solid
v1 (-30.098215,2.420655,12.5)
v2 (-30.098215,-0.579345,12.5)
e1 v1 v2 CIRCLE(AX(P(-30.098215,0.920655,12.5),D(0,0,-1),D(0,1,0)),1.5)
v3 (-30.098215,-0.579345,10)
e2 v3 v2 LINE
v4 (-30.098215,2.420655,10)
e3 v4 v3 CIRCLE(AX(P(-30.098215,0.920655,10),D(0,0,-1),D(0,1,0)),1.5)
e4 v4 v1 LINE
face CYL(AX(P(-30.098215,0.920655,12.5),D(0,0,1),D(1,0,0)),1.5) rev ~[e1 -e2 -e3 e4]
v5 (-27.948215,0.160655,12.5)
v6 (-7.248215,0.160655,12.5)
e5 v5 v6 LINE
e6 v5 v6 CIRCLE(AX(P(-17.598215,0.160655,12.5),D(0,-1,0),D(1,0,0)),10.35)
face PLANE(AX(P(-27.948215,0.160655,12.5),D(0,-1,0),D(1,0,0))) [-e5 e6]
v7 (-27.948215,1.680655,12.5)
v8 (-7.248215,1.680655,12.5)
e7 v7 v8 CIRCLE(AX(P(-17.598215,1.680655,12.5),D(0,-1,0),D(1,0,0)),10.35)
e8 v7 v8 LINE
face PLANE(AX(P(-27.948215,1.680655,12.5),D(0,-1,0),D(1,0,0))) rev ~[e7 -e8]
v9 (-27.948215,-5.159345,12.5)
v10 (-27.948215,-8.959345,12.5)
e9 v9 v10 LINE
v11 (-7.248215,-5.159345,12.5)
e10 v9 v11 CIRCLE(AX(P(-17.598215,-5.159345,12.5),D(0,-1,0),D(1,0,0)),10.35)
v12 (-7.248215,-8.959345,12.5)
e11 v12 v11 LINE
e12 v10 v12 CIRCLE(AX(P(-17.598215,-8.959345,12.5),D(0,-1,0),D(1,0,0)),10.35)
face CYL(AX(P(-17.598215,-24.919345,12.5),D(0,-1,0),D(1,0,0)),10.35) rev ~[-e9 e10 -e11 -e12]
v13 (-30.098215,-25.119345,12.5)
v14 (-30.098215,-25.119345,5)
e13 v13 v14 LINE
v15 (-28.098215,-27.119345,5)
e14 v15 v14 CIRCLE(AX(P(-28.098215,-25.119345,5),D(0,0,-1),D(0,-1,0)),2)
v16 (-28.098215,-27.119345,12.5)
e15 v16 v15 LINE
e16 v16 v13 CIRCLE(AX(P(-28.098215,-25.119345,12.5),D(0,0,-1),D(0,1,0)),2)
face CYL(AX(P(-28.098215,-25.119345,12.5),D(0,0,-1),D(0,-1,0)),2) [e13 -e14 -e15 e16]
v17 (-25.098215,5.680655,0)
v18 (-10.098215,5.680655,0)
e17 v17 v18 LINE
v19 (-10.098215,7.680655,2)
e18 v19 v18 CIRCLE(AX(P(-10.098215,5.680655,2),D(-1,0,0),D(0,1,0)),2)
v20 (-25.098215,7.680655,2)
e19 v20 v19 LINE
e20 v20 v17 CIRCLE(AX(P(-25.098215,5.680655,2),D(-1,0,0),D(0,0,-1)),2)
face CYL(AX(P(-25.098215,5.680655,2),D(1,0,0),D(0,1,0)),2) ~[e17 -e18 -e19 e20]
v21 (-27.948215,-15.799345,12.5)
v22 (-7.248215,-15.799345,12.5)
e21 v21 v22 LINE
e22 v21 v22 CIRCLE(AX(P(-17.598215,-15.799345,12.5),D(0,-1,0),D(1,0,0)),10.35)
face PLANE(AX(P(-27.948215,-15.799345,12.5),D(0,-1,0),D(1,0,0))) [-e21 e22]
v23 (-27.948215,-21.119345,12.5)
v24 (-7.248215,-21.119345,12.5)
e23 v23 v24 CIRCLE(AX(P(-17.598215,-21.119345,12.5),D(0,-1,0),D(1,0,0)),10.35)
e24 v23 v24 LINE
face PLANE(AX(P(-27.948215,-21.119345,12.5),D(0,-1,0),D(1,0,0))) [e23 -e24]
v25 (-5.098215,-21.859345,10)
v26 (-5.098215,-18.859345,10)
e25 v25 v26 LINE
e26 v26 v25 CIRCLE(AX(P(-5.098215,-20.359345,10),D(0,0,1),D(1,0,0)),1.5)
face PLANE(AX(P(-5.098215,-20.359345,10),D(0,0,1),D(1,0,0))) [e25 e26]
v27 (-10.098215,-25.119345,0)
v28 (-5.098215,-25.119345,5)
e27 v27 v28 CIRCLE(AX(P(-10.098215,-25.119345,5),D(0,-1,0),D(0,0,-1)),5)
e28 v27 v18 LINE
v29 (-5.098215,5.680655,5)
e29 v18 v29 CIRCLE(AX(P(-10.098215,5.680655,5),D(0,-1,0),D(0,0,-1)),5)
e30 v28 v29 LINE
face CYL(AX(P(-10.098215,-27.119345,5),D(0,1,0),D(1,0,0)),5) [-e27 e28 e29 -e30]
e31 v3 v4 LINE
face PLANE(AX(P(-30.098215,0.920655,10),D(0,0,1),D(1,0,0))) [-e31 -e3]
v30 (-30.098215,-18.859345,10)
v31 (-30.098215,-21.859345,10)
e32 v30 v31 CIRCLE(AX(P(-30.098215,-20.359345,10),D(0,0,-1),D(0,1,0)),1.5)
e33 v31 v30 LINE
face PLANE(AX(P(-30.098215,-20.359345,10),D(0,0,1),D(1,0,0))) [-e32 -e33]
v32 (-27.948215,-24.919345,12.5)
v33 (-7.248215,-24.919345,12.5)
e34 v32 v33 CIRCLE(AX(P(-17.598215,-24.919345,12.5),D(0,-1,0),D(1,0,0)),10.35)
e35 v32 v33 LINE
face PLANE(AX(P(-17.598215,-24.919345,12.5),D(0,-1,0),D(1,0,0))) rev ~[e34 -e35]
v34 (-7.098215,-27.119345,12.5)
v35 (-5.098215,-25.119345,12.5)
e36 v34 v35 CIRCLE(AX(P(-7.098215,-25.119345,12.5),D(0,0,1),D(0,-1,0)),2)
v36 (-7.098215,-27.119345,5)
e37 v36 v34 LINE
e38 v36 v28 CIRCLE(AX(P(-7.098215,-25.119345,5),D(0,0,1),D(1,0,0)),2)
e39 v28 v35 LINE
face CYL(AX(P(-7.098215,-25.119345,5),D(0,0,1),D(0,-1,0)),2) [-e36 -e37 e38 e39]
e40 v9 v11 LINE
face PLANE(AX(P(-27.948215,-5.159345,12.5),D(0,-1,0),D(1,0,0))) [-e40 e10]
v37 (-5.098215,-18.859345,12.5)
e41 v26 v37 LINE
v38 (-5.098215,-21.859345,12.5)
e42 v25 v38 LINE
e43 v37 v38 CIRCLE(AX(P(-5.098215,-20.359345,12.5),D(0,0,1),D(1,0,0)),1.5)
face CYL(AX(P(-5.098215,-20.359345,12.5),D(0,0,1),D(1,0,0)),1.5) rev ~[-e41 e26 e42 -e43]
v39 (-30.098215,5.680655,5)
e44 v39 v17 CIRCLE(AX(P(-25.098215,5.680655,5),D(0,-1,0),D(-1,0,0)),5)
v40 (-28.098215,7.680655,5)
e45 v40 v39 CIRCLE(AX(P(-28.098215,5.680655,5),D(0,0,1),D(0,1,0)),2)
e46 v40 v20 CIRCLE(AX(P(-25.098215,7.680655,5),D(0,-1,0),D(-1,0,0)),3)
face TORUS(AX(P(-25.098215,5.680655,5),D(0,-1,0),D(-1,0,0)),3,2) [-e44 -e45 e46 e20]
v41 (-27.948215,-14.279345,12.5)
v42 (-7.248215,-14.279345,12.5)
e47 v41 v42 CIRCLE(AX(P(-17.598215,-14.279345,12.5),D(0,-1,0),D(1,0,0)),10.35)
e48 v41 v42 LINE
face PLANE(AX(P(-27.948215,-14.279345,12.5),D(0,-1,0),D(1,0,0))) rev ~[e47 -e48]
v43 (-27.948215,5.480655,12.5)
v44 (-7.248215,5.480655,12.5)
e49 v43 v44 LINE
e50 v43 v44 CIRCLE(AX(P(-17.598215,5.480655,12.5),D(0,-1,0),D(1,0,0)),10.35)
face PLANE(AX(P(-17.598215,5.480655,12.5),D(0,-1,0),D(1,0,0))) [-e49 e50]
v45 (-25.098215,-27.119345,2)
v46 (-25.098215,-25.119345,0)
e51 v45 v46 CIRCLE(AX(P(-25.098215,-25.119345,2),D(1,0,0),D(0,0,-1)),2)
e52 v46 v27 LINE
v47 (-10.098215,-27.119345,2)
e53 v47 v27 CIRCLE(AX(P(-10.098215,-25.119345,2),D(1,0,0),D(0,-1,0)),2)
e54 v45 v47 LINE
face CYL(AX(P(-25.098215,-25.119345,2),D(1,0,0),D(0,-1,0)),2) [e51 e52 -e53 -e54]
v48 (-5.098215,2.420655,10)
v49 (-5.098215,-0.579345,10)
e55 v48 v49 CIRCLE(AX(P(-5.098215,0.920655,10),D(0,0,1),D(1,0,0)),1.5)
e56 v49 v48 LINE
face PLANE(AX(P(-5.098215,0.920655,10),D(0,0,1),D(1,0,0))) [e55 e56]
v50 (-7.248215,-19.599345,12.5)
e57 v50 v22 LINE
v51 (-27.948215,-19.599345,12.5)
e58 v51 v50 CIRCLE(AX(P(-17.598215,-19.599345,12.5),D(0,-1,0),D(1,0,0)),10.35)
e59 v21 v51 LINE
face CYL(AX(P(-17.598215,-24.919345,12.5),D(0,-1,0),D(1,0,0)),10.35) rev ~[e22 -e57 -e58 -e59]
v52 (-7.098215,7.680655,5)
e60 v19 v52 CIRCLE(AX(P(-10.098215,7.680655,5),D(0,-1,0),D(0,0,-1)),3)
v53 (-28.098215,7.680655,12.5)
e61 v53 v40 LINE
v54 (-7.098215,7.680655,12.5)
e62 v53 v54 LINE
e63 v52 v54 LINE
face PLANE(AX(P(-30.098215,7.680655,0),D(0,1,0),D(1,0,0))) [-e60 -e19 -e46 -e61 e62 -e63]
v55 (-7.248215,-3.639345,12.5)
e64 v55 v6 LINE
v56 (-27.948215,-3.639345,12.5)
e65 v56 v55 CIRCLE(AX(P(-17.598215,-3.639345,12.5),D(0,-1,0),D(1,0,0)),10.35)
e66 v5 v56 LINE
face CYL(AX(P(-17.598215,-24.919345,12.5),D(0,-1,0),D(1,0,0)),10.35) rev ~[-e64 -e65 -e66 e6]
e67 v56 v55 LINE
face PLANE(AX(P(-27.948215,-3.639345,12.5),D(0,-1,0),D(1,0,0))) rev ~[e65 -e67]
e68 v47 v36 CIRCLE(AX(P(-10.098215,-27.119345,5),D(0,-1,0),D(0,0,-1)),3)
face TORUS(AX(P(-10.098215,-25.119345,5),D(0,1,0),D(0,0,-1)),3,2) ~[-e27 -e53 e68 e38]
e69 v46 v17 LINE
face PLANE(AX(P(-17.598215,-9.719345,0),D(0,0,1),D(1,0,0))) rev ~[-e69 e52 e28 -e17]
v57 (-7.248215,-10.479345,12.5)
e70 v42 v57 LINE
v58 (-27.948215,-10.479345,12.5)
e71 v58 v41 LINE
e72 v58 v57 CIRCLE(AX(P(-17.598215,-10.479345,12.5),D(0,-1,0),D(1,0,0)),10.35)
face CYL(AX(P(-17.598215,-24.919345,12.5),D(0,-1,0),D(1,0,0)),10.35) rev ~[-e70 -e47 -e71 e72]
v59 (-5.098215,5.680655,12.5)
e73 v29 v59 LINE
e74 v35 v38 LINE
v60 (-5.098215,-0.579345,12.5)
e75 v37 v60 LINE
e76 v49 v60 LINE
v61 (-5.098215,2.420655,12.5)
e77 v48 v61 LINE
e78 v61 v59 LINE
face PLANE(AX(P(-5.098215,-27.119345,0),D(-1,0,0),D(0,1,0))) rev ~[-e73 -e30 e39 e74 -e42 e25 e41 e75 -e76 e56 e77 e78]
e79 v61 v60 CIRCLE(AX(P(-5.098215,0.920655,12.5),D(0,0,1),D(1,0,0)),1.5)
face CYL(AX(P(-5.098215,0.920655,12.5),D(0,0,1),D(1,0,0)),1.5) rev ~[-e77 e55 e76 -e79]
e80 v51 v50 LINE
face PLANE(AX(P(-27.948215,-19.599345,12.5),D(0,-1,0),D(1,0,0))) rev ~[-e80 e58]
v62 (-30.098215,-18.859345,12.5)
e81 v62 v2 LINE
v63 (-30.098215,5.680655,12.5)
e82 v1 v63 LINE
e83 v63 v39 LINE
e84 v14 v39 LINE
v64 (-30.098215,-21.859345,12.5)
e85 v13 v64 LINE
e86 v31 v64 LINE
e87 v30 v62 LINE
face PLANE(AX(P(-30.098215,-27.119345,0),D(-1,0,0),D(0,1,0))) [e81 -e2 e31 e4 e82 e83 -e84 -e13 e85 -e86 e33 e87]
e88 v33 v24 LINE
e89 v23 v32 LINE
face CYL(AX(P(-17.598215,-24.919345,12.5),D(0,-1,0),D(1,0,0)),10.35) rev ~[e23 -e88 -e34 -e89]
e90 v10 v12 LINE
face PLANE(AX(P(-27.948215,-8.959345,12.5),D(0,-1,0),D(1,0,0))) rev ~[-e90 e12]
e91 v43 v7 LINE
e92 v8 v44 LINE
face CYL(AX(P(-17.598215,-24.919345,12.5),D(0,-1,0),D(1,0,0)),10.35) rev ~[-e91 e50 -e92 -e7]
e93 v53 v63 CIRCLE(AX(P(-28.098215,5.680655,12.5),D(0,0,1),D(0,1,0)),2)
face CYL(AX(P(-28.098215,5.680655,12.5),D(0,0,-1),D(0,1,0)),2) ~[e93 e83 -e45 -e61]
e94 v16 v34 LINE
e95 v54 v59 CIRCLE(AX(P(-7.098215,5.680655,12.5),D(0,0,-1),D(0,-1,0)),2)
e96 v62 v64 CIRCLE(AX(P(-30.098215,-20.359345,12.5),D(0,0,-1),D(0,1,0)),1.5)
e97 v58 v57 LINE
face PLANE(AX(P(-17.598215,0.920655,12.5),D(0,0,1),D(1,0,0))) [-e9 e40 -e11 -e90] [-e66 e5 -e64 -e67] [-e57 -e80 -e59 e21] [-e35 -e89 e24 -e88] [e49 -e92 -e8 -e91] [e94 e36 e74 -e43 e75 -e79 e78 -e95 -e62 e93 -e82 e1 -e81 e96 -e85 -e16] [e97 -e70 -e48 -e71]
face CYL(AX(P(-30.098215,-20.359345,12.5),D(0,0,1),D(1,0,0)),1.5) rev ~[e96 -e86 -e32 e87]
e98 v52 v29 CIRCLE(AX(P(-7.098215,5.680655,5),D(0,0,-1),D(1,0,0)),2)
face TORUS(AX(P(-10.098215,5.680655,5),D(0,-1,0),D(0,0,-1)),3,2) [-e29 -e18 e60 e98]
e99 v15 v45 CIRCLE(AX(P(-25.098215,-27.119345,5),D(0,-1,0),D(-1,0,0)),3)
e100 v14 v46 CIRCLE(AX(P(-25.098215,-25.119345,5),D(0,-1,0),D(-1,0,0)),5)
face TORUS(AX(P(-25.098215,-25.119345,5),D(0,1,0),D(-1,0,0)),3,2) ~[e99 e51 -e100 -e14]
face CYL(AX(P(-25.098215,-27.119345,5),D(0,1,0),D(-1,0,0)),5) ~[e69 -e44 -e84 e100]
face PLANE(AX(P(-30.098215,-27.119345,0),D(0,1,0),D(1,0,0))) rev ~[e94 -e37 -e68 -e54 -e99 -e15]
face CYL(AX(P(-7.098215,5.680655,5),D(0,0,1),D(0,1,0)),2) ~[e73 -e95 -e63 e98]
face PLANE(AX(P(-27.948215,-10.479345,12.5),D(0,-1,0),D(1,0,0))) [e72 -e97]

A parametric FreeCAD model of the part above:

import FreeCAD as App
import Part
import Sketcher
Q = App.Units.Quantity


def edges_at(feature, points):
    """Names of the edges that pass closest to the given points."""
    edges = feature.Shape.Edges
    near = lambda p: min(range(len(edges)), key=lambda i: edges[i].distToShape(Part.Vertex(*p))[0])
    return sorted({f"Edge{near(p) + 1}" for p in points})


def add_polygon(sketch, points):
    """Adds a closed chain of lines whose ends are joined by coincident constraints."""
    first, n = sketch.GeometryCount, len(points)
    for a, b in zip(points, points[1:] + points[:1]):
        sketch.addGeometry(Part.LineSegment(App.Vector(*a, 0), App.Vector(*b, 0)), False)
    for i in range(n):
        sketch.addConstraint(Sketcher.Constraint("Coincident", first + i, 2, first + (i + 1) % n, 1))

doc = App.newDocument("Part")
body = doc.addObject("PartDesign::Body", "Body")

# Sketch on XY plane
sketch1 = body.newObject("Sketcher::SketchObject", "Sketch")
sketch1.AttachmentSupport = (doc.getObject("XY_Plane"), [""])
sketch1.MapMode = "FlatFace"
add_polygon(sketch1, [(-30, 8), (-30, -27), (-5, -27), (-5, 8)])  # lines 0-3
sketch1.addConstraint([
    Sketcher.Constraint("Vertical", 0),
    Sketcher.Constraint("Horizontal", 1),
    Sketcher.Constraint("Vertical", 2),
    Sketcher.Constraint("Horizontal", 3),
    Sketcher.Constraint("DistanceX", 1, 1, 1, 2, Q("25 mm")),
    Sketcher.Constraint("DistanceY", 0, 2, 0, 1, Q("34.8 mm")),
    Sketcher.Constraint("DistanceX", 0, 2, -1, 1, Q("30.098215 mm")),
    Sketcher.Constraint("DistanceY", 0, 2, -1, 1, Q("27.119345 mm")),
])
pad1 = body.newObject("PartDesign::Pad", "Pad")
pad1.Profile = sketch1
pad1.Length = 12.5

# Sketch on XZ plane
sketch2 = body.newObject("Sketcher::SketchObject", "Sketch001")
sketch2.AttachmentSupport = (doc.getObject("XZ_Plane"), [""])
sketch2.MapMode = "FlatFace"
sketch2.AttachmentOffset = App.Placement(App.Vector(0, 0, 24.919345), App.Rotation())
sketch2.addGeometry(Part.Circle(App.Vector(-18, 12, 0), App.Vector(0, 0, 1), 10), False)
sketch2.addConstraint([
    Sketcher.Constraint("Diameter", 0, Q("20.7 mm")),
    Sketcher.Constraint("DistanceY", -1, 1, 0, 3, Q("12.5 mm")),
    Sketcher.Constraint("DistanceX", 0, 3, -1, 1, Q("17.598215 mm")),
])
pocket1 = body.newObject("PartDesign::Pocket", "Pocket")
pocket1.Profile = sketch2
pocket1.Length = 30.4

# Sketch on XY plane
sketch3 = body.newObject("Sketcher::SketchObject", "Sketch002")
sketch3.AttachmentSupport = (doc.getObject("XY_Plane"), [""])
sketch3.MapMode = "FlatFace"
sketch3.AttachmentOffset = App.Placement(App.Vector(0, 0, 12.5), App.Rotation())
add_polygon(sketch3, [(-27.9, 1.7), (-27.9, 0.2), (-7.2, 0.2), (-7.2, 1.7)])  # lines 0-3
add_polygon(sketch3, [(-27.9, -3.6), (-27.9, -5.2), (-7.2, -5.2), (-7.2, -3.6)])  # lines 4-7
add_polygon(sketch3, [(-27.9, -9), (-27.9, -10.5), (-7.2, -10.5), (-7.2, -9)])  # lines 8-11
add_polygon(sketch3, [(-27.9, -14.3), (-27.9, -15.8), (-7.2, -15.8), (-7.2, -14.3)])  # lines 12-15
add_polygon(sketch3, [(-27.9, -19.6), (-27.9, -21.1), (-7.2, -21.1), (-7.2, -19.6)])  # lines 16-19
sketch3.addConstraint([
    Sketcher.Constraint("Vertical", 0),
    Sketcher.Constraint("Horizontal", 1),
    Sketcher.Constraint("Vertical", 2),
    Sketcher.Constraint("Horizontal", 3),
    Sketcher.Constraint("Vertical", 4),
    Sketcher.Constraint("Horizontal", 5),
    Sketcher.Constraint("Vertical", 6),
    Sketcher.Constraint("Horizontal", 7),
    Sketcher.Constraint("Vertical", 8),
    Sketcher.Constraint("Horizontal", 9),
    Sketcher.Constraint("Vertical", 10),
    Sketcher.Constraint("Horizontal", 11),
    Sketcher.Constraint("Vertical", 12),
    Sketcher.Constraint("Horizontal", 13),
    Sketcher.Constraint("Vertical", 14),
    Sketcher.Constraint("Horizontal", 15),
    Sketcher.Constraint("Vertical", 16),
    Sketcher.Constraint("Horizontal", 17),
    Sketcher.Constraint("Vertical", 18),
    Sketcher.Constraint("Horizontal", 19),
    Sketcher.Constraint("Vertical", 3, 2, 4, 2),
    Sketcher.Constraint("Vertical", 2, 2, 5, 2),
    Sketcher.Constraint("Vertical", 7, 2, 8, 2),
    Sketcher.Constraint("Vertical", 6, 2, 9, 2),
    Sketcher.Constraint("Vertical", 11, 2, 12, 2),
    Sketcher.Constraint("Vertical", 10, 2, 13, 2),
    Sketcher.Constraint("Vertical", 15, 2, 16, 2),
    Sketcher.Constraint("Vertical", 14, 2, 17, 2),
    Sketcher.Constraint("Equal", 2, 4),
    Sketcher.Constraint("Equal", 6, 8),
    Sketcher.Constraint("Equal", 10, 12),
    Sketcher.Constraint("Equal", 14, 16),
    Sketcher.Constraint("DistanceX", 1, 1, 1, 2, Q("20.7 mm")),
    Sketcher.Constraint("DistanceY", 0, 2, 0, 1, Q("1.52 mm")),
    Sketcher.Constraint("DistanceY", 6, 2, 1, 2, Q("3.8 mm")),
    Sketcher.Constraint("DistanceY", 10, 2, 5, 2, Q("3.8 mm")),
    Sketcher.Constraint("DistanceY", 14, 2, 9, 2, Q("3.8 mm")),
    Sketcher.Constraint("DistanceY", 18, 2, 13, 2, Q("3.8 mm")),
    Sketcher.Constraint("DistanceX", 0, 2, -1, 1, Q("27.948215 mm")),
    Sketcher.Constraint("DistanceY", -1, 1, 0, 2, Q("0.160655 mm")),
])
pad2 = body.newObject("PartDesign::Pad", "Pad001")
pad2.Profile = sketch3
pad2.Length = 10.6
pad2.Reversed = True
doc.recompute()

fillet = body.newObject("PartDesign::Fillet", "Fillet")
fillet.Base = (pad2, edges_at(pad2, [(-5.098, -9.719, 0), (-30.098, -9.719, 0)]))
fillet.Radius = 5
doc.recompute()

fillet2 = body.newObject("PartDesign::Fillet", "Fillet001")
fillet2.Base = (fillet, edges_at(fillet, [(-5.098, -27.119, 8.75), (-5.098, 7.681, 8.75)]))
fillet2.Radius = 2

# Sketch on XY plane
sketch4 = body.newObject("Sketcher::SketchObject", "Sketch003")
sketch4.AttachmentSupport = (doc.getObject("XY_Plane"), [""])
sketch4.MapMode = "FlatFace"
sketch4.AttachmentOffset = App.Placement(App.Vector(0, 0, 12.5), App.Rotation())
sketch4.addGeometry([
    Part.Circle(App.Vector(-30.1, 0.9, 0), App.Vector(0, 0, 1), 1.5),
    Part.Circle(App.Vector(-5.1, 0.9, 0), App.Vector(0, 0, 1), 1.5),
    Part.Circle(App.Vector(-5.1, -20.4, 0), App.Vector(0, 0, 1), 1.5),
    Part.Circle(App.Vector(-30.1, -20.4, 0), App.Vector(0, 0, 1), 1.5),
], False)
sketch4.addConstraint([
    Sketcher.Constraint("Equal", 0, 1),
    Sketcher.Constraint("Equal", 1, 2),
    Sketcher.Constraint("Equal", 2, 3),
    Sketcher.Constraint("Horizontal", 0, 3, 1, 3),
    Sketcher.Constraint("Horizontal", 2, 3, 3, 3),
    Sketcher.Constraint("Vertical", 1, 3, 2, 3),
    Sketcher.Constraint("Vertical", 0, 3, 3, 3),
    Sketcher.Constraint("Diameter", 0, Q("3 mm")),
    Sketcher.Constraint("DistanceX", 0, 3, 1, 3, Q("25 mm")),
    Sketcher.Constraint("DistanceY", 2, 3, 1, 3, Q("21.28 mm")),
    Sketcher.Constraint("DistanceX", 0, 3, -1, 1, Q("30.098215 mm")),
    Sketcher.Constraint("DistanceY", -1, 1, 0, 3, Q("0.920655 mm")),
])
pocket2 = body.newObject("PartDesign::Pocket", "Pocket001")
pocket2.Profile = sketch4
pocket2.Length = 2.5

doc.recompute()
